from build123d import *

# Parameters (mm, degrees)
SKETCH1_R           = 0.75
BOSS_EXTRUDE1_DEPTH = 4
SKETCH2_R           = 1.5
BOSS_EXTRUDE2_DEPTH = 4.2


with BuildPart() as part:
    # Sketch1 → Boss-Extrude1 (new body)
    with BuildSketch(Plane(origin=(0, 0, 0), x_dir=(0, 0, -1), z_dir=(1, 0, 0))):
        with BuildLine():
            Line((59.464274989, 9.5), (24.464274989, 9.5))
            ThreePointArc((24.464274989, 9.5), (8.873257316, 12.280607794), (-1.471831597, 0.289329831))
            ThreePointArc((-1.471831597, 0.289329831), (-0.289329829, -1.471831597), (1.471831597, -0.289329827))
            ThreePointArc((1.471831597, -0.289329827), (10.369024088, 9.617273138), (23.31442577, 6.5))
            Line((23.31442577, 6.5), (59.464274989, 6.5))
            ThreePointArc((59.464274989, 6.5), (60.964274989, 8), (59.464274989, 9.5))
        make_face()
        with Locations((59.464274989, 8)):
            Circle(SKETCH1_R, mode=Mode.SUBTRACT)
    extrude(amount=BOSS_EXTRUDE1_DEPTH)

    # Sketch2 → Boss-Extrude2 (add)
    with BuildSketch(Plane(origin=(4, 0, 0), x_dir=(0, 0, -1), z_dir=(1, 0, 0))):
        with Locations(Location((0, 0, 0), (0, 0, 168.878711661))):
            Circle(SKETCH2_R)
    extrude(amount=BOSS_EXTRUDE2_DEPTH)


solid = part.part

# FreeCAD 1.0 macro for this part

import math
import FreeCAD as App
import Part
import Sketcher
from FreeCAD import Vector

doc = App.newDocument("Part")
params = doc.addObject("Spreadsheet::Sheet", "Params")
for row, (alias, value) in enumerate([
    ("sketch1_radius", "16 mm"),
    ("sketch1_radius2", "13 mm"),
    ("sketch1_diameter", "1.5 mm"),
    ("sketch1_height", "35 mm"),
    ("pad1_length", "4 mm"),
    ("sketch2_diameter", "3 mm"),
    ("pad2_length", "4.2 mm"),
], start=1):
    params.set(f"A{row}", alias)
    params.set(f"B{row}", "=" + value)
    params.setAlias(f"B{row}", alias)

body = doc.addObject("PartDesign::Body", "Body")

# Sketch on YZ plane
sketch1 = doc.addObject("Sketcher::SketchObject", "Sketch")
body.addObject(sketch1)
sketch1.AttachmentSupport = (doc.YZ_Plane, [""])
sketch1.MapMode = "FlatFace"
sketch1.addGeometry([
    Part.LineSegment(Vector(9.5, -59.464275, 0), Vector(9.5, -24.464275, 0)),  # 0
    Part.ArcOfCircle(Part.Circle(Vector(-2.796855, -14.227705, 0), Vector(0, 0, 1), 16), math.radians(-39.775834), math.radians(78.878712)),  # 1
    Part.ArcOfCircle(Part.Circle(Vector(0, 0, 0), Vector(0, 0, 1), 1.5), math.radians(78.878712), math.radians(258.878712)),  # 2
    Part.ArcOfCircle(Part.Circle(Vector(-2.796855, -14.227705, 0), Vector(0, 0, 1), 13), math.radians(-44.345105), math.radians(78.878712)),  # 3
    Part.LineSegment(Vector(6.5, -23.314426, 0), Vector(6.5, -59.464275, 0)),  # 4
    Part.ArcOfCircle(Part.Circle(Vector(8, -59.464275, 0), Vector(0, 0, 1), 1.5), math.radians(180), math.radians(360)),  # 5
    Part.Circle(Vector(8, -59.464275, 0), Vector(0, 0, 1), 0.75),  # 6
], False)
sketch1.addConstraint([
    Sketcher.Constraint("Coincident", 0, 2, 1, 1),
    Sketcher.Constraint("Tangent", 1, 2, 2, 1),
    Sketcher.Constraint("Tangent", 2, 2, 3, 2),
    Sketcher.Constraint("Coincident", 3, 1, 4, 1),
    Sketcher.Constraint("Tangent", 4, 2, 5, 1),
    Sketcher.Constraint("Tangent", 5, 2, 0, 1),
    Sketcher.Constraint("Vertical", 0),
    Sketcher.Constraint("Vertical", 4),
    Sketcher.Constraint("Coincident", 2, 3, -1, 1),
    Sketcher.Constraint("Coincident", 3, 3, 1, 3),
    Sketcher.Constraint("Coincident", 6, 3, 5, 3),
    Sketcher.Constraint("Equal", 2, 5),
    Sketcher.Constraint("Radius", 1, 16.0),
    Sketcher.Constraint("Radius", 3, 13.0),
    Sketcher.Constraint("Diameter", 6, 1.5),
    Sketcher.Constraint("DistanceY", 0, 1, 0, 2, 35.0),
    Sketcher.Constraint("DistanceX", -1, 1, 5, 3, 8.0),
    Sketcher.Constraint("DistanceY", 4, 2, 4, 1, 36.149849),
])
sketch1.setExpression("Constraints[12]", "Params.sketch1_radius")
sketch1.setExpression("Constraints[13]", "Params.sketch1_radius2")
sketch1.setExpression("Constraints[14]", "Params.sketch1_diameter")
sketch1.setExpression("Constraints[15]", "Params.sketch1_height")
pad1 = doc.addObject("PartDesign::Pad", "Pad")
body.addObject(pad1)
pad1.Profile = sketch1
pad1.setExpression("Length", "Params.pad1_length")

# Sketch on YZ plane
sketch2 = doc.addObject("Sketcher::SketchObject", "Sketch001")
body.addObject(sketch2)
sketch2.AttachmentSupport = (doc.YZ_Plane, [""])
sketch2.MapMode = "FlatFace"
sketch2.AttachmentOffset = App.Placement(Vector(0, 0, 4), App.Rotation())
sketch2.addGeometry(Part.Circle(Vector(0, 0, 0), Vector(0, 0, 1), 1.5), False)
sketch2.addConstraint([
    Sketcher.Constraint("Coincident", 0, 3, -1, 1),
    Sketcher.Constraint("Diameter", 0, 3.0),
])
sketch2.setExpression("Constraints[1]", "Params.sketch2_diameter")
pad2 = doc.addObject("PartDesign::Pad", "Pad001")
body.addObject(pad2)
pad2.Profile = sketch2
pad2.setExpression("Length", "Params.pad2_length")

doc.recompute()
